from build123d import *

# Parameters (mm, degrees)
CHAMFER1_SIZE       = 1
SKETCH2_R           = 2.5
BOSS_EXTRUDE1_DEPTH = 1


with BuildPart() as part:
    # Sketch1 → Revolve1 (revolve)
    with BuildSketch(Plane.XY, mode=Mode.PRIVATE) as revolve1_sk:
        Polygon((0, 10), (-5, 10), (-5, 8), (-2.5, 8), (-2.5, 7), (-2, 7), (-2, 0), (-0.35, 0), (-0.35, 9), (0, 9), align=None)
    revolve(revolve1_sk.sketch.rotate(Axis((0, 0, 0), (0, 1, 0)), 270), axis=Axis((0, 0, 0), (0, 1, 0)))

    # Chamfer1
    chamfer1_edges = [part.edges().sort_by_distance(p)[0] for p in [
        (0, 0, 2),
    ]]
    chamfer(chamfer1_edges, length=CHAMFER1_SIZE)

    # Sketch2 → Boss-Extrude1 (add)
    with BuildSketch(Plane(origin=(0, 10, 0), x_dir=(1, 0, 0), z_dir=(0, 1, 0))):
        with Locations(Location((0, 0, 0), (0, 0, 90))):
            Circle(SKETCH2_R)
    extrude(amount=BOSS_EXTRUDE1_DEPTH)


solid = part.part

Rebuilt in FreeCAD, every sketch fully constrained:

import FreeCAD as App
import Part
import Sketcher
from FreeCAD import Vector
Q = App.Units.Quantity


def edges_at(feature, points):
    """Names of the edges that pass closest to the given points."""
    edges = feature.Shape.Edges
    near = lambda p: min(range(len(edges)), key=lambda i: edges[i].distToShape(Part.Vertex(*p))[0])
    return sorted({f"Edge{near(p) + 1}" for p in points})

doc = App.newDocument("Part")
body = doc.addObject("PartDesign::Body", "Body")

sketch1 = body.newObject("Sketcher::SketchObject", "Sketch")
sketch1.AttachmentSupport = (doc.getObject("XY_Plane"), [""])
sketch1.MapMode = "FlatFace"
sketch1.addGeometry(Part.LineSegment(Vector(0, 10, 0), Vector(-5, 10, 0)), False)
sketch1.addGeometry(Part.LineSegment(Vector(-5, 10, 0), Vector(-5, 8, 0)), False)
sketch1.addGeometry(Part.LineSegment(Vector(-5, 8, 0), Vector(-2.5, 8, 0)), False)
sketch1.addGeometry(Part.LineSegment(Vector(-2.5, 8, 0), Vector(-2.5, 7, 0)), False)
sketch1.addGeometry(Part.LineSegment(Vector(-2.5, 7, 0), Vector(-2, 7, 0)), False)
sketch1.addGeometry(Part.LineSegment(Vector(-2, 7, 0), Vector(-2, 0, 0)), False)
sketch1.addGeometry(Part.LineSegment(Vector(-2, 0, 0), Vector(-0.35, 0, 0)), False)
sketch1.addGeometry(Part.LineSegment(Vector(-0.35, 0, 0), Vector(-0.35, 9, 0)), False)
sketch1.addGeometry(Part.LineSegment(Vector(-0.35, 9, 0), Vector(0, 9, 0)), False)
sketch1.addGeometry(Part.LineSegment(Vector(0, 9, 0), Vector(0, 10, 0)), False)
sketch1.addConstraint(Sketcher.Constraint("Coincident", 0, 2, 1, 1))
sketch1.addConstraint(Sketcher.Constraint("Coincident", 1, 2, 2, 1))
sketch1.addConstraint(Sketcher.Constraint("Coincident", 2, 2, 3, 1))
sketch1.addConstraint(Sketcher.Constraint("Coincident", 3, 2, 4, 1))
sketch1.addConstraint(Sketcher.Constraint("Coincident", 4, 2, 5, 1))
sketch1.addConstraint(Sketcher.Constraint("Coincident", 5, 2, 6, 1))
sketch1.addConstraint(Sketcher.Constraint("Coincident", 6, 2, 7, 1))
sketch1.addConstraint(Sketcher.Constraint("Coincident", 7, 2, 8, 1))
sketch1.addConstraint(Sketcher.Constraint("Coincident", 8, 2, 9, 1))
sketch1.addConstraint(Sketcher.Constraint("Coincident", 9, 2, 0, 1))
sketch1.addConstraint(Sketcher.Constraint("Horizontal", 0))
sketch1.addConstraint(Sketcher.Constraint("Vertical", 1))
sketch1.addConstraint(Sketcher.Constraint("Horizontal", 2))
sketch1.addConstraint(Sketcher.Constraint("Vertical", 3))
sketch1.addConstraint(Sketcher.Constraint("Horizontal", 4))
sketch1.addConstraint(Sketcher.Constraint("Vertical", 5))
sketch1.addConstraint(Sketcher.Constraint("Horizontal", 6))
sketch1.addConstraint(Sketcher.Constraint("Vertical", 7))
sketch1.addConstraint(Sketcher.Constraint("Horizontal", 8))
sketch1.addConstraint(Sketcher.Constraint("Vertical", 9))
sketch1.addConstraint(Sketcher.Constraint("PointOnObject", 5, 2, -1))
sketch1.addConstraint(Sketcher.Constraint("PointOnObject", 8, 2, -2))
sketch1.addConstraint(Sketcher.Constraint("Equal", 3, 9))
sketch1.addConstraint(Sketcher.Constraint("DistanceX", 0, 2, 0, 1, Q("5 mm")))
sketch1.addConstraint(Sketcher.Constraint("DistanceY", 1, 2, 1, 1, Q("2 mm")))
sketch1.addConstraint(Sketcher.Constraint("DistanceY", 3, 2, 3, 1, Q("1 mm")))
sketch1.addConstraint(Sketcher.Constraint("DistanceY", 5, 2, 5, 1, Q("7 mm")))
sketch1.addConstraint(Sketcher.Constraint("DistanceX", 2, 1, 2, 2, Q("2.5 mm")))
sketch1.addConstraint(Sketcher.Constraint("DistanceX", 4, 1, 4, 2, Q("0.5 mm")))
sketch1.addConstraint(Sketcher.Constraint("DistanceX", 6, 1, 6, 2, Q("1.65 mm")))
revolution = body.newObject("PartDesign::Revolution", "Revolution")
revolution.Profile = sketch1
revolution.ReferenceAxis = (sketch1, ["V_Axis"])
revolution.Angle = 360
doc.recompute()

chamfer = body.newObject("PartDesign::Chamfer", "Chamfer")
chamfer.Base = (revolution, edges_at(revolution, [(0, 0, 2)]))
chamfer.Size = 1

sketch2 = body.newObject("Sketcher::SketchObject", "Sketch001")
sketch2.AttachmentSupport = (doc.getObject("XZ_Plane"), [""])
sketch2.MapMode = "FlatFace"
sketch2.AttachmentOffset = App.Placement(Vector(0, 0, -10), App.Rotation())
sketch2.addGeometry(Part.Circle(Vector(0, 0, 0), Vector(0, 0, 1), 2.5), False)
sketch2.addConstraint(Sketcher.Constraint("Coincident", 0, 3, -1, 1))
sketch2.addConstraint(Sketcher.Constraint("Diameter", 0, Q("5 mm")))
pad1 = body.newObject("PartDesign::Pad", "Pad")
pad1.Profile = sketch2
pad1.Length = 1
pad1.Reversed = True

doc.recompute()
